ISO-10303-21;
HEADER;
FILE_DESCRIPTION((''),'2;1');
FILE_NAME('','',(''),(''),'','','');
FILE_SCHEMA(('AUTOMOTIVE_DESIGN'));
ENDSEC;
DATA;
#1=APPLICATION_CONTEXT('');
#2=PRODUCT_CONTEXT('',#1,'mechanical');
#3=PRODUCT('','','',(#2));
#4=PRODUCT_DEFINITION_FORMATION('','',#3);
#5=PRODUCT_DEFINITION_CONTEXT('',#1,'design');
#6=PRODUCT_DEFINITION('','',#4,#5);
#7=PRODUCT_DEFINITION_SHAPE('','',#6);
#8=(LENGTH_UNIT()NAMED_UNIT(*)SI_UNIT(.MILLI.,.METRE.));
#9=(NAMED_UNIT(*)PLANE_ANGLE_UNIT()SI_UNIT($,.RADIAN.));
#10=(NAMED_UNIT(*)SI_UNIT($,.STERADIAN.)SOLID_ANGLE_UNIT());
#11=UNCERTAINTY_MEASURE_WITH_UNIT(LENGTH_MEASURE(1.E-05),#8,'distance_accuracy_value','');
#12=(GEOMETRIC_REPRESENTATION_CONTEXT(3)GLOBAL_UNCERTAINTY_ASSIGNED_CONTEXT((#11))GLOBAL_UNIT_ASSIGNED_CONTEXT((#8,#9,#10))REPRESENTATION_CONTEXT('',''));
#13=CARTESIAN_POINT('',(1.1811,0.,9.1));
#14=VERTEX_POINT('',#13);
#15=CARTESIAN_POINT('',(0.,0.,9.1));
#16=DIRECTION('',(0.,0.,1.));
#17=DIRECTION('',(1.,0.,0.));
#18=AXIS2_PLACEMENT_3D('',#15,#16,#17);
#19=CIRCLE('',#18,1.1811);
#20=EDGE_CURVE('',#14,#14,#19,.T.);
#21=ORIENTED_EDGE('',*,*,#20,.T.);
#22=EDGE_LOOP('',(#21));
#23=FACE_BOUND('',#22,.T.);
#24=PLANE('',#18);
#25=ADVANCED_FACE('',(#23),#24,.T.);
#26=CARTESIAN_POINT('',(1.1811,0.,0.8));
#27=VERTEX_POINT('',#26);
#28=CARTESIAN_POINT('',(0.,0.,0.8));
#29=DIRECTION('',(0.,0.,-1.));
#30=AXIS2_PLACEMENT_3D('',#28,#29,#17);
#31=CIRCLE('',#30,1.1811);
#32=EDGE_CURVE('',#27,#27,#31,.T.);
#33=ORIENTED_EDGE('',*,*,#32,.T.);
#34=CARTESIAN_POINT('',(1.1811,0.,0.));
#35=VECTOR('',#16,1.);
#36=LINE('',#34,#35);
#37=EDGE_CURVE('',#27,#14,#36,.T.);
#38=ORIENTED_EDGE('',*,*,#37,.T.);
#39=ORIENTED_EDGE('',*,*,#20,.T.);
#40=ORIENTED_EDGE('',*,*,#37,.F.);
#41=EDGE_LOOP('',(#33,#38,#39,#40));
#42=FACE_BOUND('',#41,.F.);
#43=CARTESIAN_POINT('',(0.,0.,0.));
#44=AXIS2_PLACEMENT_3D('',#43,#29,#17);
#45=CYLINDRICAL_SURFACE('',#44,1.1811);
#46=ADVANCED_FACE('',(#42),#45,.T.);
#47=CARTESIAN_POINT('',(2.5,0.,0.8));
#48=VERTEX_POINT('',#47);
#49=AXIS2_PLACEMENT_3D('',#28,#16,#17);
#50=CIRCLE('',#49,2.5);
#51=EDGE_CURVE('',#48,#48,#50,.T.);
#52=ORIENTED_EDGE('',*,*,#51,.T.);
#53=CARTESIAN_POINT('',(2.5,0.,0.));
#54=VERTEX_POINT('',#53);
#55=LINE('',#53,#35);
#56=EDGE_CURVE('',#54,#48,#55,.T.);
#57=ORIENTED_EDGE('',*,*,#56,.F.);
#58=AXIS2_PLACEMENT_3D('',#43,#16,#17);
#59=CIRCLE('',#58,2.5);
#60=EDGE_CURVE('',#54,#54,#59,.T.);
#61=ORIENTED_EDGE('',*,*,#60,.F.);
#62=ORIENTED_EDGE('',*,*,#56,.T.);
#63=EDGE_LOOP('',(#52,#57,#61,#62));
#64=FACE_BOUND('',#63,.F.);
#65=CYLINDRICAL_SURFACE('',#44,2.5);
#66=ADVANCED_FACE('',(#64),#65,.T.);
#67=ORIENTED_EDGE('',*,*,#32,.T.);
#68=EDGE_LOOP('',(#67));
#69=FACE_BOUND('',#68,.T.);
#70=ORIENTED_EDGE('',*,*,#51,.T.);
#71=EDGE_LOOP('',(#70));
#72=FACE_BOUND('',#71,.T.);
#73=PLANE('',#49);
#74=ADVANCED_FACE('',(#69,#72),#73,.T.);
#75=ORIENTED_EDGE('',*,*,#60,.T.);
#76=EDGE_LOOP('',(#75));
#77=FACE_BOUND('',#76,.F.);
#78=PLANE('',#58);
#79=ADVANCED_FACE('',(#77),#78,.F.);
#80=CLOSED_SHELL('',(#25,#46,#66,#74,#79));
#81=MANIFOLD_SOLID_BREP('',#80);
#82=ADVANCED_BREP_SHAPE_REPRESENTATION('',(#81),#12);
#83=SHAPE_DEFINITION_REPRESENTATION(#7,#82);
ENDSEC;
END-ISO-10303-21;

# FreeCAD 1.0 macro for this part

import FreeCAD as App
import Part
import Sketcher
from FreeCAD import Vector
Q = App.Units.Quantity

doc = App.newDocument("Part")
body = doc.addObject("PartDesign::Body", "Body")

# Sketch on XY plane
sketch1 = body.newObject("Sketcher::SketchObject", "Sketch")
sketch1.AttachmentSupport = (doc.getObject("XY_Plane"), [""])
sketch1.MapMode = "FlatFace"
sketch1.addGeometry(Part.Circle(Vector(0, 0, 0), Vector(0, 0, 1), 1.2), False)
sketch1.addConstraint([
    Sketcher.Constraint("Coincident", 0, 3, -1, 1),
    Sketcher.Constraint("Diameter", 0, Q("2.3622 mm")),
])
pad1 = body.newObject("PartDesign::Pad", "Pad")
pad1.Profile = sketch1
pad1.Length = 9.1

# Sketch on XY plane
sketch2 = body.newObject("Sketcher::SketchObject", "Sketch001")
sketch2.AttachmentSupport = (doc.getObject("XY_Plane"), [""])
sketch2.MapMode = "FlatFace"
sketch2.addGeometry(Part.Circle(Vector(0, 0, 0), Vector(0, 0, 1), 2.5), False)
sketch2.addConstraint([
    Sketcher.Constraint("Coincident", 0, 3, -1, 1),
    Sketcher.Constraint("Diameter", 0, Q("5 mm")),
])
pad2 = body.newObject("PartDesign::Pad", "Pad001")
pad2.Profile = sketch2
pad2.Length = 0.8

doc.recompute()
